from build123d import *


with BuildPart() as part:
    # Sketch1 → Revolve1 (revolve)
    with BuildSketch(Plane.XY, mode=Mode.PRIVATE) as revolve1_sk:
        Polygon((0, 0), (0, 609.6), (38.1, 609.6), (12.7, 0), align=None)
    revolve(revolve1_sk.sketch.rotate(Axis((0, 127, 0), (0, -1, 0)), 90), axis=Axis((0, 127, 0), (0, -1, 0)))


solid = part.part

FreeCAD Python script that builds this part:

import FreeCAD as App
import Part
import Sketcher
Q = App.Units.Quantity


def add_polygon(sketch, points):
    """Adds a closed chain of lines whose ends are joined by coincident constraints."""
    first, n = sketch.GeometryCount, len(points)
    for a, b in zip(points, points[1:] + points[:1]):
        sketch.addGeometry(Part.LineSegment(App.Vector(*a, 0), App.Vector(*b, 0)), False)
    for i in range(n):
        sketch.addConstraint(Sketcher.Constraint("Coincident", first + i, 2, first + (i + 1) % n, 1))

doc = App.newDocument("Part")
body = doc.addObject("PartDesign::Body", "Body")

# Sketch on XY plane
sketch1 = body.newObject("Sketcher::SketchObject", "Sketch")
sketch1.AttachmentSupport = (doc.getObject("XY_Plane"), [""])
sketch1.MapMode = "FlatFace"
add_polygon(sketch1, [(0, 610), (0, 0), (13, 0), (38, 610)])  # lines 0-3
sketch1.addConstraint(Sketcher.Constraint("Vertical", 0))
sketch1.addConstraint(Sketcher.Constraint("Horizontal", 1))
sketch1.addConstraint(Sketcher.Constraint("Horizontal", 3))
sketch1.addConstraint(Sketcher.Constraint("Coincident", 0, 2, -1, 1))
sketch1.addConstraint(Sketcher.Constraint("DistanceY", 0, 2, 0, 1, Q("24 in")))
sketch1.addConstraint(Sketcher.Constraint("DistanceX", 1, 1, 1, 2, Q("0.5 in")))
sketch1.addConstraint(Sketcher.Constraint("DistanceX", 3, 2, 3, 1, Q("1.5 in")))
revolution = body.newObject("PartDesign::Revolution", "Revolution")
revolution.Profile = sketch1
revolution.ReferenceAxis = (sketch1, ["V_Axis"])
revolution.Angle = 360

doc.recompute()
